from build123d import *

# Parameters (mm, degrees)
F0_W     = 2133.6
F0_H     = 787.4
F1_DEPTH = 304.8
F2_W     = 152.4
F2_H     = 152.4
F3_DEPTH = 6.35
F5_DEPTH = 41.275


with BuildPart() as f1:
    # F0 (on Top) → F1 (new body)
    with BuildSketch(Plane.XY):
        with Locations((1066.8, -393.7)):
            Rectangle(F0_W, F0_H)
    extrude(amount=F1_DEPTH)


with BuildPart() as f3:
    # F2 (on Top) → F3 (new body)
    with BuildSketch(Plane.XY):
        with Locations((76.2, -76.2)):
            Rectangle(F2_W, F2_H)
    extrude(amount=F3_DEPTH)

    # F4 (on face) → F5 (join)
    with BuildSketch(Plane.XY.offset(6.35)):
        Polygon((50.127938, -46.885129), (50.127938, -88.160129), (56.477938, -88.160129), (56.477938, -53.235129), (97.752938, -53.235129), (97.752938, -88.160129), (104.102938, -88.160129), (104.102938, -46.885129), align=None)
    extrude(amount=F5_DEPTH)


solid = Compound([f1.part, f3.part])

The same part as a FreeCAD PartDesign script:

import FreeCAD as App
import Part
import Sketcher
from FreeCAD import Vector
Q = App.Units.Quantity

doc = App.newDocument("Part")
body = doc.addObject("PartDesign::Body", "Body")

sketch1 = doc.addObject("Sketcher::SketchObject", "Sketch")
body.addObject(sketch1)
sketch1.AttachmentSupport = (doc.XY_Plane, [""])
sketch1.MapMode = "FlatFace"
sketch1.addGeometry([
    Part.LineSegment(Vector(0, 0, 0), Vector(0, -787.4, 0)),
    Part.LineSegment(Vector(0, -787.4, 0), Vector(2133.6, -787.4, 0)),
    Part.LineSegment(Vector(2133.6, -787.4, 0), Vector(2133.6, 0, 0)),
    Part.LineSegment(Vector(2133.6, 0, 0), Vector(0, 0, 0)),
], False)
sketch1.addConstraint([
    Sketcher.Constraint("Coincident", 0, 2, 1, 1),
    Sketcher.Constraint("Coincident", 1, 2, 2, 1),
    Sketcher.Constraint("Coincident", 2, 2, 3, 1),
    Sketcher.Constraint("Coincident", 3, 2, 0, 1),
    Sketcher.Constraint("Vertical", 0),
    Sketcher.Constraint("Horizontal", 1),
    Sketcher.Constraint("Vertical", 2),
    Sketcher.Constraint("Horizontal", 3),
    Sketcher.Constraint("Coincident", 3, 2, -1, 1),
    Sketcher.Constraint("DistanceX", 1, 1, 1, 2, Q("84 in")),
    Sketcher.Constraint("DistanceY", 0, 2, 0, 1, Q("31 in")),
])
pad1 = doc.addObject("PartDesign::Pad", "Pad")
body.addObject(pad1)
pad1.Profile = sketch1
pad1.Length = Q("12 in")
body2 = doc.addObject("PartDesign::Body", "Body001")

sketch2 = doc.addObject("Sketcher::SketchObject", "Sketch001")
body2.addObject(sketch2)
sketch2.AttachmentSupport = (doc.getObject("XY_Plane001"), [""])
sketch2.MapMode = "FlatFace"
sketch2.addGeometry([
    Part.LineSegment(Vector(0, 0, 0), Vector(0, -152.4, 0)),
    Part.LineSegment(Vector(0, -152.4, 0), Vector(152.4, -152.4, 0)),
    Part.LineSegment(Vector(152.4, -152.4, 0), Vector(152.4, 0, 0)),
    Part.LineSegment(Vector(152.4, 0, 0), Vector(0, 0, 0)),
], False)
sketch2.addConstraint([
    Sketcher.Constraint("Coincident", 0, 2, 1, 1),
    Sketcher.Constraint("Coincident", 1, 2, 2, 1),
    Sketcher.Constraint("Coincident", 2, 2, 3, 1),
    Sketcher.Constraint("Coincident", 3, 2, 0, 1),
    Sketcher.Constraint("Vertical", 0),
    Sketcher.Constraint("Horizontal", 1),
    Sketcher.Constraint("Vertical", 2),
    Sketcher.Constraint("Horizontal", 3),
    Sketcher.Constraint("Coincident", 3, 2, -1, 1),
    Sketcher.Constraint("Equal", 3, 0),
    Sketcher.Constraint("DistanceX", 1, 1, 1, 2, Q("6 in")),
])
pad2 = doc.addObject("PartDesign::Pad", "Pad001")
body2.addObject(pad2)
pad2.Profile = sketch2
pad2.Length = Q("0.25 in")

sketch3 = doc.addObject("Sketcher::SketchObject", "Sketch002")
body2.addObject(sketch3)
sketch3.AttachmentSupport = (doc.getObject("XY_Plane001"), [""])
sketch3.MapMode = "FlatFace"
sketch3.AttachmentOffset = App.Placement(Vector(0, 0, 0.25 * 25.4), App.Rotation())
sketch3.addGeometry([
    Part.LineSegment(Vector(50.127938, -46.885129, 0), Vector(50.127938, -88.160129, 0)),
    Part.LineSegment(Vector(50.127938, -88.160129, 0), Vector(56.477938, -88.160129, 0)),
    Part.LineSegment(Vector(56.477938, -88.160129, 0), Vector(56.477938, -53.235129, 0)),
    Part.LineSegment(Vector(56.477938, -53.235129, 0), Vector(97.752938, -53.235129, 0)),
    Part.LineSegment(Vector(97.752938, -53.235129, 0), Vector(97.752938, -88.160129, 0)),
    Part.LineSegment(Vector(97.752938, -88.160129, 0), Vector(104.102938, -88.160129, 0)),
    Part.LineSegment(Vector(104.102938, -88.160129, 0), Vector(104.102938, -46.885129, 0)),
    Part.LineSegment(Vector(104.102938, -46.885129, 0), Vector(50.127938, -46.885129, 0)),
], False)
sketch3.addConstraint([
    Sketcher.Constraint("Coincident", 0, 2, 1, 1),
    Sketcher.Constraint("Coincident", 1, 2, 2, 1),
    Sketcher.Constraint("Coincident", 2, 2, 3, 1),
    Sketcher.Constraint("Coincident", 3, 2, 4, 1),
    Sketcher.Constraint("Coincident", 4, 2, 5, 1),
    Sketcher.Constraint("Coincident", 5, 2, 6, 1),
    Sketcher.Constraint("Coincident", 6, 2, 7, 1),
    Sketcher.Constraint("Coincident", 7, 2, 0, 1),
    Sketcher.Constraint("Vertical", 0),
    Sketcher.Constraint("Horizontal", 1),
    Sketcher.Constraint("Vertical", 2),
    Sketcher.Constraint("Horizontal", 3),
    Sketcher.Constraint("Vertical", 4),
    Sketcher.Constraint("Horizontal", 5),
    Sketcher.Constraint("Vertical", 6),
    Sketcher.Constraint("Horizontal", 7),
    Sketcher.Constraint("Horizontal", 1, 2, 4, 2),
    Sketcher.Constraint("Equal", 1, 5),
    Sketcher.Constraint("Equal", 3, 0),
    Sketcher.Constraint("DistanceX", 1, 1, 1, 2, Q("0.25 in")),
    Sketcher.Constraint("DistanceX", 3, 1, 3, 2, Q("1.625 in")),
    Sketcher.Constraint("DistanceY", 2, 1, 2, 2, Q("1.375 in")),
    Sketcher.Constraint("DistanceY", 0, 2, -1, 1, 88.160129),
    Sketcher.Constraint("DistanceX", -1, 1, 1, 2, 56.477938),
])
pad3 = doc.addObject("PartDesign::Pad", "Pad002")
body2.addObject(pad3)
pad3.Profile = sketch3
pad3.Length = Q("1.625 in")

doc.recompute()
